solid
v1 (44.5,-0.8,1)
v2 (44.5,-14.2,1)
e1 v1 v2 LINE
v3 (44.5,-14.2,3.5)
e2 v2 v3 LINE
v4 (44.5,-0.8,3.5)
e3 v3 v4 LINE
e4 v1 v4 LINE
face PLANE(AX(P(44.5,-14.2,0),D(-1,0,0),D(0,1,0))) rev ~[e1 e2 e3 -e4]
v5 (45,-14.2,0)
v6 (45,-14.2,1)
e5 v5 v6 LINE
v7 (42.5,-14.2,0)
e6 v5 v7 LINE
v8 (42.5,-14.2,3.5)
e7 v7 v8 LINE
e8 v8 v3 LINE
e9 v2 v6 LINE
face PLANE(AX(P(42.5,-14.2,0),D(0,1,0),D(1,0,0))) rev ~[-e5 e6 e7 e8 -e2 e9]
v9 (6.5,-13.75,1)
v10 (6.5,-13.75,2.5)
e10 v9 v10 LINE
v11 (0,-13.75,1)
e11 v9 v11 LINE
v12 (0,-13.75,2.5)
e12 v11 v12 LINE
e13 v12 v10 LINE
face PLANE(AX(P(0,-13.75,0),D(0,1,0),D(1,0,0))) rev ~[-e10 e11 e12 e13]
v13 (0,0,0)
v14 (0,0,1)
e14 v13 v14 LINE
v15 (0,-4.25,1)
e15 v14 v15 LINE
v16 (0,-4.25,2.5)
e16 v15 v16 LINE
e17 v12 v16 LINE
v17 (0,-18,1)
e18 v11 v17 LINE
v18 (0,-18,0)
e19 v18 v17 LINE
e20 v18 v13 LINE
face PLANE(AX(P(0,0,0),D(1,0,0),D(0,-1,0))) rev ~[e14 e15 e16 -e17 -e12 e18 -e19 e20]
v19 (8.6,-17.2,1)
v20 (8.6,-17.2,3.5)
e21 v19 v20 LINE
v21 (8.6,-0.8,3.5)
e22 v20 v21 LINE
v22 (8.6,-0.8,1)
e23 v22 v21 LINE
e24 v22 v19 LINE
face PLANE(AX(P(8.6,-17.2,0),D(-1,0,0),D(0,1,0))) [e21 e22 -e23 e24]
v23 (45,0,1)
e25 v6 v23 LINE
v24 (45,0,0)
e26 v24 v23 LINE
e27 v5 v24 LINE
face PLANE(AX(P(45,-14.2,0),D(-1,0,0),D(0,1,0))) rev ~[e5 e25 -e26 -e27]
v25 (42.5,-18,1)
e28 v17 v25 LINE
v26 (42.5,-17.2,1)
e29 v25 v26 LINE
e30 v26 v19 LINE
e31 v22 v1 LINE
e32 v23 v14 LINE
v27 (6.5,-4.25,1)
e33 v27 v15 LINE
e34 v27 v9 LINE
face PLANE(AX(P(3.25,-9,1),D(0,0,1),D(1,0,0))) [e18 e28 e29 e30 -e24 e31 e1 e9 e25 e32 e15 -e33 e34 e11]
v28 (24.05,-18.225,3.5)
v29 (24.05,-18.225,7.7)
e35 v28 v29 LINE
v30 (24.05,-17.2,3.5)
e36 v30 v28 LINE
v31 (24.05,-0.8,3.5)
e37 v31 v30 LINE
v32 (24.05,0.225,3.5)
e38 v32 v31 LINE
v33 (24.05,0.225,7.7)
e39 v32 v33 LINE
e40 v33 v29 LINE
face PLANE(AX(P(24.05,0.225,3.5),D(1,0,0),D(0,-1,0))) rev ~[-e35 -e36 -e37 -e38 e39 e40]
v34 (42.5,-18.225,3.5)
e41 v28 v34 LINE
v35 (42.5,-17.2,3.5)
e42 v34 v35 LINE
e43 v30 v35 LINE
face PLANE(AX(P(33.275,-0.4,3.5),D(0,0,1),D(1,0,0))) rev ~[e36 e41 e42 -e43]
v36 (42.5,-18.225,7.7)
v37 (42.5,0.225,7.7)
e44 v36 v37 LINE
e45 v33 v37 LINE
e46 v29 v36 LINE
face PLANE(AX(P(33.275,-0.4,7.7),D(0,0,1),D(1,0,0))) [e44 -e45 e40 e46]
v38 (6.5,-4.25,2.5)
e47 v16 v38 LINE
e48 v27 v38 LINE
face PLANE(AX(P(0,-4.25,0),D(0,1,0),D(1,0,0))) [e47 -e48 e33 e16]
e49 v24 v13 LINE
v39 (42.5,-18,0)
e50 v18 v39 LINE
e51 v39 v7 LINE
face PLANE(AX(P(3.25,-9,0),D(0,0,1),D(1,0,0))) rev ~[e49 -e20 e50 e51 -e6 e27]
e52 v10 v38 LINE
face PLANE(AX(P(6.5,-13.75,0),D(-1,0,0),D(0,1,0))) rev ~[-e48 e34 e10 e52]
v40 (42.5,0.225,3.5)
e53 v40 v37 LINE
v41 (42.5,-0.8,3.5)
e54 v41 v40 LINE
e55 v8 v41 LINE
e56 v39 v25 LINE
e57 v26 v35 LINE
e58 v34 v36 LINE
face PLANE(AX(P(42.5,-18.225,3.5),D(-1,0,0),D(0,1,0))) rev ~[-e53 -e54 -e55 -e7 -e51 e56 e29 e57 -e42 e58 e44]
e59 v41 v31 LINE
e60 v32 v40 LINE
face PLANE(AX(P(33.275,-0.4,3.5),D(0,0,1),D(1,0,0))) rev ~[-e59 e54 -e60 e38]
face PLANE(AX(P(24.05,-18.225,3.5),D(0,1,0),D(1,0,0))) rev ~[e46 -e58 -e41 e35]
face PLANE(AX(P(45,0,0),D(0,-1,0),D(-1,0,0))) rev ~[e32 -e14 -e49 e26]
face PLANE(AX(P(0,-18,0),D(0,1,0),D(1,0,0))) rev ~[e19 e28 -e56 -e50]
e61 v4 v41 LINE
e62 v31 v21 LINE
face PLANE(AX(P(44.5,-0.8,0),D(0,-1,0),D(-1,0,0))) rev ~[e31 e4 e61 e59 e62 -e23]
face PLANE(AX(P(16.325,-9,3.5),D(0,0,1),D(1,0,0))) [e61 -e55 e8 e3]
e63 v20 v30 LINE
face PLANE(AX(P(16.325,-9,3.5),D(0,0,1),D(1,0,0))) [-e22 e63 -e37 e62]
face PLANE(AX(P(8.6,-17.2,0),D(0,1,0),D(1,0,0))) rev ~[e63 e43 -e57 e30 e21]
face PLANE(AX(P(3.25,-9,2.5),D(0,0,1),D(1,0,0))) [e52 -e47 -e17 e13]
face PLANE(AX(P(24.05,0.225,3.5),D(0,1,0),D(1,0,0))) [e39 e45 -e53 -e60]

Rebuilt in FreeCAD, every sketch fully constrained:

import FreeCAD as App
import Part
import Sketcher
Q = App.Units.Quantity


def add_polygon(sketch, points):
    """Adds a closed chain of lines whose ends are joined by coincident constraints."""
    first, n = sketch.GeometryCount, len(points)
    for a, b in zip(points, points[1:] + points[:1]):
        sketch.addGeometry(Part.LineSegment(App.Vector(*a, 0), App.Vector(*b, 0)), False)
    for i in range(n):
        sketch.addConstraint(Sketcher.Constraint("Coincident", first + i, 2, first + (i + 1) % n, 1))

doc = App.newDocument("Part")
body = doc.addObject("PartDesign::Body", "Body")

# Sketch on XY plane
sketch1 = body.newObject("Sketcher::SketchObject", "Sketch")
sketch1.AttachmentSupport = (doc.getObject("XY_Plane"), [""])
sketch1.MapMode = "FlatFace"
add_polygon(sketch1, [(0, -18), (42.5, -18), (42.5, -14.2), (45, -14.2), (45, 0), (0, 0)])  # lines 0-5
sketch1.addConstraint([
    Sketcher.Constraint("Horizontal", 0),
    Sketcher.Constraint("Vertical", 1),
    Sketcher.Constraint("Horizontal", 2),
    Sketcher.Constraint("Vertical", 3),
    Sketcher.Constraint("Horizontal", 4),
    Sketcher.Constraint("Vertical", 5),
    Sketcher.Constraint("Coincident", 4, 2, -1, 1),
    Sketcher.Constraint("DistanceX", 4, 2, 4, 1, Q("45 mm")),
    Sketcher.Constraint("DistanceY", 5, 2, 5, 1, Q("18 mm")),
    Sketcher.Constraint("DistanceX", 0, 1, 0, 2, Q("42.5 mm")),
    Sketcher.Constraint("DistanceY", 1, 1, 1, 2, Q("3.8 mm")),
])
pad1 = body.newObject("PartDesign::Pad", "Pad")
pad1.Profile = sketch1
pad1.Length = 1

# Sketch on XY plane
sketch2 = body.newObject("Sketcher::SketchObject", "Sketch001")
sketch2.AttachmentSupport = (doc.getObject("XY_Plane"), [""])
sketch2.MapMode = "FlatFace"
add_polygon(sketch2, [(8.6, -0.8), (8.6, -17.2), (42.5, -17.2), (42.5, -14.2), (44.5, -14.2), (44.5, -0.8)])  # lines 0-5
sketch2.addConstraint([
    Sketcher.Constraint("Vertical", 0),
    Sketcher.Constraint("Horizontal", 1),
    Sketcher.Constraint("Vertical", 2),
    Sketcher.Constraint("Horizontal", 3),
    Sketcher.Constraint("Vertical", 4),
    Sketcher.Constraint("Horizontal", 5),
    Sketcher.Constraint("DistanceX", 3, 1, 3, 2, Q("2 mm")),
    Sketcher.Constraint("DistanceY", 2, 1, 2, 2, Q("3 mm")),
    Sketcher.Constraint("DistanceX", 1, 1, 1, 2, Q("33.9 mm")),
    Sketcher.Constraint("DistanceY", 0, 2, 0, 1, Q("16.4 mm")),
    Sketcher.Constraint("DistanceX", -1, 1, 0, 2, Q("8.6 mm")),
    Sketcher.Constraint("DistanceY", 0, 2, -1, 1, Q("17.2 mm")),
])
pad2 = body.newObject("PartDesign::Pad", "Pad001")
pad2.Profile = sketch2
pad2.Length = 3.5

# Sketch on XY plane
sketch3 = body.newObject("Sketcher::SketchObject", "Sketch002")
sketch3.AttachmentSupport = (doc.getObject("XY_Plane"), [""])
sketch3.MapMode = "FlatFace"
sketch3.AttachmentOffset = App.Placement(App.Vector(0, 0, 3.5), App.Rotation())
add_polygon(sketch3, [(42, 0), (24, 0), (24, -18), (42, -18)])  # lines 0-3
sketch3.addConstraint([
    Sketcher.Constraint("Horizontal", 0),
    Sketcher.Constraint("Vertical", 1),
    Sketcher.Constraint("Horizontal", 2),
    Sketcher.Constraint("Vertical", 3),
    Sketcher.Constraint("Equal", 2, 1),
    Sketcher.Constraint("DistanceX", 0, 2, 0, 1, Q("18.45 mm")),
    Sketcher.Constraint("DistanceX", -1, 1, 2, 2, Q("42.5 mm")),
    Sketcher.Constraint("DistanceY", -1, 1, 0, 2, Q("0.225 mm")),
])
pad3 = body.newObject("PartDesign::Pad", "Pad002")
pad3.Profile = sketch3
pad3.Length = 4.2

# Sketch on XY plane
sketch4 = body.newObject("Sketcher::SketchObject", "Sketch003")
sketch4.AttachmentSupport = (doc.getObject("XY_Plane"), [""])
sketch4.MapMode = "FlatFace"
add_polygon(sketch4, [(0, -4), (0, -14), (6, -14), (6, -4)])  # lines 0-3
sketch4.addConstraint([
    Sketcher.Constraint("Vertical", 0),
    Sketcher.Constraint("Horizontal", 1),
    Sketcher.Constraint("Vertical", 2),
    Sketcher.Constraint("Horizontal", 3),
    Sketcher.Constraint("PointOnObject", 0, 2, -2),
    Sketcher.Constraint("DistanceX", 1, 1, 1, 2, Q("6.5 mm")),
    Sketcher.Constraint("DistanceY", 0, 2, 0, 1, Q("9.5 mm")),
    Sketcher.Constraint("DistanceY", 0, 2, -1, 1, Q("13.75 mm")),
])
pad4 = body.newObject("PartDesign::Pad", "Pad003")
pad4.Profile = sketch4
pad4.Length = 2.5

doc.recompute()
